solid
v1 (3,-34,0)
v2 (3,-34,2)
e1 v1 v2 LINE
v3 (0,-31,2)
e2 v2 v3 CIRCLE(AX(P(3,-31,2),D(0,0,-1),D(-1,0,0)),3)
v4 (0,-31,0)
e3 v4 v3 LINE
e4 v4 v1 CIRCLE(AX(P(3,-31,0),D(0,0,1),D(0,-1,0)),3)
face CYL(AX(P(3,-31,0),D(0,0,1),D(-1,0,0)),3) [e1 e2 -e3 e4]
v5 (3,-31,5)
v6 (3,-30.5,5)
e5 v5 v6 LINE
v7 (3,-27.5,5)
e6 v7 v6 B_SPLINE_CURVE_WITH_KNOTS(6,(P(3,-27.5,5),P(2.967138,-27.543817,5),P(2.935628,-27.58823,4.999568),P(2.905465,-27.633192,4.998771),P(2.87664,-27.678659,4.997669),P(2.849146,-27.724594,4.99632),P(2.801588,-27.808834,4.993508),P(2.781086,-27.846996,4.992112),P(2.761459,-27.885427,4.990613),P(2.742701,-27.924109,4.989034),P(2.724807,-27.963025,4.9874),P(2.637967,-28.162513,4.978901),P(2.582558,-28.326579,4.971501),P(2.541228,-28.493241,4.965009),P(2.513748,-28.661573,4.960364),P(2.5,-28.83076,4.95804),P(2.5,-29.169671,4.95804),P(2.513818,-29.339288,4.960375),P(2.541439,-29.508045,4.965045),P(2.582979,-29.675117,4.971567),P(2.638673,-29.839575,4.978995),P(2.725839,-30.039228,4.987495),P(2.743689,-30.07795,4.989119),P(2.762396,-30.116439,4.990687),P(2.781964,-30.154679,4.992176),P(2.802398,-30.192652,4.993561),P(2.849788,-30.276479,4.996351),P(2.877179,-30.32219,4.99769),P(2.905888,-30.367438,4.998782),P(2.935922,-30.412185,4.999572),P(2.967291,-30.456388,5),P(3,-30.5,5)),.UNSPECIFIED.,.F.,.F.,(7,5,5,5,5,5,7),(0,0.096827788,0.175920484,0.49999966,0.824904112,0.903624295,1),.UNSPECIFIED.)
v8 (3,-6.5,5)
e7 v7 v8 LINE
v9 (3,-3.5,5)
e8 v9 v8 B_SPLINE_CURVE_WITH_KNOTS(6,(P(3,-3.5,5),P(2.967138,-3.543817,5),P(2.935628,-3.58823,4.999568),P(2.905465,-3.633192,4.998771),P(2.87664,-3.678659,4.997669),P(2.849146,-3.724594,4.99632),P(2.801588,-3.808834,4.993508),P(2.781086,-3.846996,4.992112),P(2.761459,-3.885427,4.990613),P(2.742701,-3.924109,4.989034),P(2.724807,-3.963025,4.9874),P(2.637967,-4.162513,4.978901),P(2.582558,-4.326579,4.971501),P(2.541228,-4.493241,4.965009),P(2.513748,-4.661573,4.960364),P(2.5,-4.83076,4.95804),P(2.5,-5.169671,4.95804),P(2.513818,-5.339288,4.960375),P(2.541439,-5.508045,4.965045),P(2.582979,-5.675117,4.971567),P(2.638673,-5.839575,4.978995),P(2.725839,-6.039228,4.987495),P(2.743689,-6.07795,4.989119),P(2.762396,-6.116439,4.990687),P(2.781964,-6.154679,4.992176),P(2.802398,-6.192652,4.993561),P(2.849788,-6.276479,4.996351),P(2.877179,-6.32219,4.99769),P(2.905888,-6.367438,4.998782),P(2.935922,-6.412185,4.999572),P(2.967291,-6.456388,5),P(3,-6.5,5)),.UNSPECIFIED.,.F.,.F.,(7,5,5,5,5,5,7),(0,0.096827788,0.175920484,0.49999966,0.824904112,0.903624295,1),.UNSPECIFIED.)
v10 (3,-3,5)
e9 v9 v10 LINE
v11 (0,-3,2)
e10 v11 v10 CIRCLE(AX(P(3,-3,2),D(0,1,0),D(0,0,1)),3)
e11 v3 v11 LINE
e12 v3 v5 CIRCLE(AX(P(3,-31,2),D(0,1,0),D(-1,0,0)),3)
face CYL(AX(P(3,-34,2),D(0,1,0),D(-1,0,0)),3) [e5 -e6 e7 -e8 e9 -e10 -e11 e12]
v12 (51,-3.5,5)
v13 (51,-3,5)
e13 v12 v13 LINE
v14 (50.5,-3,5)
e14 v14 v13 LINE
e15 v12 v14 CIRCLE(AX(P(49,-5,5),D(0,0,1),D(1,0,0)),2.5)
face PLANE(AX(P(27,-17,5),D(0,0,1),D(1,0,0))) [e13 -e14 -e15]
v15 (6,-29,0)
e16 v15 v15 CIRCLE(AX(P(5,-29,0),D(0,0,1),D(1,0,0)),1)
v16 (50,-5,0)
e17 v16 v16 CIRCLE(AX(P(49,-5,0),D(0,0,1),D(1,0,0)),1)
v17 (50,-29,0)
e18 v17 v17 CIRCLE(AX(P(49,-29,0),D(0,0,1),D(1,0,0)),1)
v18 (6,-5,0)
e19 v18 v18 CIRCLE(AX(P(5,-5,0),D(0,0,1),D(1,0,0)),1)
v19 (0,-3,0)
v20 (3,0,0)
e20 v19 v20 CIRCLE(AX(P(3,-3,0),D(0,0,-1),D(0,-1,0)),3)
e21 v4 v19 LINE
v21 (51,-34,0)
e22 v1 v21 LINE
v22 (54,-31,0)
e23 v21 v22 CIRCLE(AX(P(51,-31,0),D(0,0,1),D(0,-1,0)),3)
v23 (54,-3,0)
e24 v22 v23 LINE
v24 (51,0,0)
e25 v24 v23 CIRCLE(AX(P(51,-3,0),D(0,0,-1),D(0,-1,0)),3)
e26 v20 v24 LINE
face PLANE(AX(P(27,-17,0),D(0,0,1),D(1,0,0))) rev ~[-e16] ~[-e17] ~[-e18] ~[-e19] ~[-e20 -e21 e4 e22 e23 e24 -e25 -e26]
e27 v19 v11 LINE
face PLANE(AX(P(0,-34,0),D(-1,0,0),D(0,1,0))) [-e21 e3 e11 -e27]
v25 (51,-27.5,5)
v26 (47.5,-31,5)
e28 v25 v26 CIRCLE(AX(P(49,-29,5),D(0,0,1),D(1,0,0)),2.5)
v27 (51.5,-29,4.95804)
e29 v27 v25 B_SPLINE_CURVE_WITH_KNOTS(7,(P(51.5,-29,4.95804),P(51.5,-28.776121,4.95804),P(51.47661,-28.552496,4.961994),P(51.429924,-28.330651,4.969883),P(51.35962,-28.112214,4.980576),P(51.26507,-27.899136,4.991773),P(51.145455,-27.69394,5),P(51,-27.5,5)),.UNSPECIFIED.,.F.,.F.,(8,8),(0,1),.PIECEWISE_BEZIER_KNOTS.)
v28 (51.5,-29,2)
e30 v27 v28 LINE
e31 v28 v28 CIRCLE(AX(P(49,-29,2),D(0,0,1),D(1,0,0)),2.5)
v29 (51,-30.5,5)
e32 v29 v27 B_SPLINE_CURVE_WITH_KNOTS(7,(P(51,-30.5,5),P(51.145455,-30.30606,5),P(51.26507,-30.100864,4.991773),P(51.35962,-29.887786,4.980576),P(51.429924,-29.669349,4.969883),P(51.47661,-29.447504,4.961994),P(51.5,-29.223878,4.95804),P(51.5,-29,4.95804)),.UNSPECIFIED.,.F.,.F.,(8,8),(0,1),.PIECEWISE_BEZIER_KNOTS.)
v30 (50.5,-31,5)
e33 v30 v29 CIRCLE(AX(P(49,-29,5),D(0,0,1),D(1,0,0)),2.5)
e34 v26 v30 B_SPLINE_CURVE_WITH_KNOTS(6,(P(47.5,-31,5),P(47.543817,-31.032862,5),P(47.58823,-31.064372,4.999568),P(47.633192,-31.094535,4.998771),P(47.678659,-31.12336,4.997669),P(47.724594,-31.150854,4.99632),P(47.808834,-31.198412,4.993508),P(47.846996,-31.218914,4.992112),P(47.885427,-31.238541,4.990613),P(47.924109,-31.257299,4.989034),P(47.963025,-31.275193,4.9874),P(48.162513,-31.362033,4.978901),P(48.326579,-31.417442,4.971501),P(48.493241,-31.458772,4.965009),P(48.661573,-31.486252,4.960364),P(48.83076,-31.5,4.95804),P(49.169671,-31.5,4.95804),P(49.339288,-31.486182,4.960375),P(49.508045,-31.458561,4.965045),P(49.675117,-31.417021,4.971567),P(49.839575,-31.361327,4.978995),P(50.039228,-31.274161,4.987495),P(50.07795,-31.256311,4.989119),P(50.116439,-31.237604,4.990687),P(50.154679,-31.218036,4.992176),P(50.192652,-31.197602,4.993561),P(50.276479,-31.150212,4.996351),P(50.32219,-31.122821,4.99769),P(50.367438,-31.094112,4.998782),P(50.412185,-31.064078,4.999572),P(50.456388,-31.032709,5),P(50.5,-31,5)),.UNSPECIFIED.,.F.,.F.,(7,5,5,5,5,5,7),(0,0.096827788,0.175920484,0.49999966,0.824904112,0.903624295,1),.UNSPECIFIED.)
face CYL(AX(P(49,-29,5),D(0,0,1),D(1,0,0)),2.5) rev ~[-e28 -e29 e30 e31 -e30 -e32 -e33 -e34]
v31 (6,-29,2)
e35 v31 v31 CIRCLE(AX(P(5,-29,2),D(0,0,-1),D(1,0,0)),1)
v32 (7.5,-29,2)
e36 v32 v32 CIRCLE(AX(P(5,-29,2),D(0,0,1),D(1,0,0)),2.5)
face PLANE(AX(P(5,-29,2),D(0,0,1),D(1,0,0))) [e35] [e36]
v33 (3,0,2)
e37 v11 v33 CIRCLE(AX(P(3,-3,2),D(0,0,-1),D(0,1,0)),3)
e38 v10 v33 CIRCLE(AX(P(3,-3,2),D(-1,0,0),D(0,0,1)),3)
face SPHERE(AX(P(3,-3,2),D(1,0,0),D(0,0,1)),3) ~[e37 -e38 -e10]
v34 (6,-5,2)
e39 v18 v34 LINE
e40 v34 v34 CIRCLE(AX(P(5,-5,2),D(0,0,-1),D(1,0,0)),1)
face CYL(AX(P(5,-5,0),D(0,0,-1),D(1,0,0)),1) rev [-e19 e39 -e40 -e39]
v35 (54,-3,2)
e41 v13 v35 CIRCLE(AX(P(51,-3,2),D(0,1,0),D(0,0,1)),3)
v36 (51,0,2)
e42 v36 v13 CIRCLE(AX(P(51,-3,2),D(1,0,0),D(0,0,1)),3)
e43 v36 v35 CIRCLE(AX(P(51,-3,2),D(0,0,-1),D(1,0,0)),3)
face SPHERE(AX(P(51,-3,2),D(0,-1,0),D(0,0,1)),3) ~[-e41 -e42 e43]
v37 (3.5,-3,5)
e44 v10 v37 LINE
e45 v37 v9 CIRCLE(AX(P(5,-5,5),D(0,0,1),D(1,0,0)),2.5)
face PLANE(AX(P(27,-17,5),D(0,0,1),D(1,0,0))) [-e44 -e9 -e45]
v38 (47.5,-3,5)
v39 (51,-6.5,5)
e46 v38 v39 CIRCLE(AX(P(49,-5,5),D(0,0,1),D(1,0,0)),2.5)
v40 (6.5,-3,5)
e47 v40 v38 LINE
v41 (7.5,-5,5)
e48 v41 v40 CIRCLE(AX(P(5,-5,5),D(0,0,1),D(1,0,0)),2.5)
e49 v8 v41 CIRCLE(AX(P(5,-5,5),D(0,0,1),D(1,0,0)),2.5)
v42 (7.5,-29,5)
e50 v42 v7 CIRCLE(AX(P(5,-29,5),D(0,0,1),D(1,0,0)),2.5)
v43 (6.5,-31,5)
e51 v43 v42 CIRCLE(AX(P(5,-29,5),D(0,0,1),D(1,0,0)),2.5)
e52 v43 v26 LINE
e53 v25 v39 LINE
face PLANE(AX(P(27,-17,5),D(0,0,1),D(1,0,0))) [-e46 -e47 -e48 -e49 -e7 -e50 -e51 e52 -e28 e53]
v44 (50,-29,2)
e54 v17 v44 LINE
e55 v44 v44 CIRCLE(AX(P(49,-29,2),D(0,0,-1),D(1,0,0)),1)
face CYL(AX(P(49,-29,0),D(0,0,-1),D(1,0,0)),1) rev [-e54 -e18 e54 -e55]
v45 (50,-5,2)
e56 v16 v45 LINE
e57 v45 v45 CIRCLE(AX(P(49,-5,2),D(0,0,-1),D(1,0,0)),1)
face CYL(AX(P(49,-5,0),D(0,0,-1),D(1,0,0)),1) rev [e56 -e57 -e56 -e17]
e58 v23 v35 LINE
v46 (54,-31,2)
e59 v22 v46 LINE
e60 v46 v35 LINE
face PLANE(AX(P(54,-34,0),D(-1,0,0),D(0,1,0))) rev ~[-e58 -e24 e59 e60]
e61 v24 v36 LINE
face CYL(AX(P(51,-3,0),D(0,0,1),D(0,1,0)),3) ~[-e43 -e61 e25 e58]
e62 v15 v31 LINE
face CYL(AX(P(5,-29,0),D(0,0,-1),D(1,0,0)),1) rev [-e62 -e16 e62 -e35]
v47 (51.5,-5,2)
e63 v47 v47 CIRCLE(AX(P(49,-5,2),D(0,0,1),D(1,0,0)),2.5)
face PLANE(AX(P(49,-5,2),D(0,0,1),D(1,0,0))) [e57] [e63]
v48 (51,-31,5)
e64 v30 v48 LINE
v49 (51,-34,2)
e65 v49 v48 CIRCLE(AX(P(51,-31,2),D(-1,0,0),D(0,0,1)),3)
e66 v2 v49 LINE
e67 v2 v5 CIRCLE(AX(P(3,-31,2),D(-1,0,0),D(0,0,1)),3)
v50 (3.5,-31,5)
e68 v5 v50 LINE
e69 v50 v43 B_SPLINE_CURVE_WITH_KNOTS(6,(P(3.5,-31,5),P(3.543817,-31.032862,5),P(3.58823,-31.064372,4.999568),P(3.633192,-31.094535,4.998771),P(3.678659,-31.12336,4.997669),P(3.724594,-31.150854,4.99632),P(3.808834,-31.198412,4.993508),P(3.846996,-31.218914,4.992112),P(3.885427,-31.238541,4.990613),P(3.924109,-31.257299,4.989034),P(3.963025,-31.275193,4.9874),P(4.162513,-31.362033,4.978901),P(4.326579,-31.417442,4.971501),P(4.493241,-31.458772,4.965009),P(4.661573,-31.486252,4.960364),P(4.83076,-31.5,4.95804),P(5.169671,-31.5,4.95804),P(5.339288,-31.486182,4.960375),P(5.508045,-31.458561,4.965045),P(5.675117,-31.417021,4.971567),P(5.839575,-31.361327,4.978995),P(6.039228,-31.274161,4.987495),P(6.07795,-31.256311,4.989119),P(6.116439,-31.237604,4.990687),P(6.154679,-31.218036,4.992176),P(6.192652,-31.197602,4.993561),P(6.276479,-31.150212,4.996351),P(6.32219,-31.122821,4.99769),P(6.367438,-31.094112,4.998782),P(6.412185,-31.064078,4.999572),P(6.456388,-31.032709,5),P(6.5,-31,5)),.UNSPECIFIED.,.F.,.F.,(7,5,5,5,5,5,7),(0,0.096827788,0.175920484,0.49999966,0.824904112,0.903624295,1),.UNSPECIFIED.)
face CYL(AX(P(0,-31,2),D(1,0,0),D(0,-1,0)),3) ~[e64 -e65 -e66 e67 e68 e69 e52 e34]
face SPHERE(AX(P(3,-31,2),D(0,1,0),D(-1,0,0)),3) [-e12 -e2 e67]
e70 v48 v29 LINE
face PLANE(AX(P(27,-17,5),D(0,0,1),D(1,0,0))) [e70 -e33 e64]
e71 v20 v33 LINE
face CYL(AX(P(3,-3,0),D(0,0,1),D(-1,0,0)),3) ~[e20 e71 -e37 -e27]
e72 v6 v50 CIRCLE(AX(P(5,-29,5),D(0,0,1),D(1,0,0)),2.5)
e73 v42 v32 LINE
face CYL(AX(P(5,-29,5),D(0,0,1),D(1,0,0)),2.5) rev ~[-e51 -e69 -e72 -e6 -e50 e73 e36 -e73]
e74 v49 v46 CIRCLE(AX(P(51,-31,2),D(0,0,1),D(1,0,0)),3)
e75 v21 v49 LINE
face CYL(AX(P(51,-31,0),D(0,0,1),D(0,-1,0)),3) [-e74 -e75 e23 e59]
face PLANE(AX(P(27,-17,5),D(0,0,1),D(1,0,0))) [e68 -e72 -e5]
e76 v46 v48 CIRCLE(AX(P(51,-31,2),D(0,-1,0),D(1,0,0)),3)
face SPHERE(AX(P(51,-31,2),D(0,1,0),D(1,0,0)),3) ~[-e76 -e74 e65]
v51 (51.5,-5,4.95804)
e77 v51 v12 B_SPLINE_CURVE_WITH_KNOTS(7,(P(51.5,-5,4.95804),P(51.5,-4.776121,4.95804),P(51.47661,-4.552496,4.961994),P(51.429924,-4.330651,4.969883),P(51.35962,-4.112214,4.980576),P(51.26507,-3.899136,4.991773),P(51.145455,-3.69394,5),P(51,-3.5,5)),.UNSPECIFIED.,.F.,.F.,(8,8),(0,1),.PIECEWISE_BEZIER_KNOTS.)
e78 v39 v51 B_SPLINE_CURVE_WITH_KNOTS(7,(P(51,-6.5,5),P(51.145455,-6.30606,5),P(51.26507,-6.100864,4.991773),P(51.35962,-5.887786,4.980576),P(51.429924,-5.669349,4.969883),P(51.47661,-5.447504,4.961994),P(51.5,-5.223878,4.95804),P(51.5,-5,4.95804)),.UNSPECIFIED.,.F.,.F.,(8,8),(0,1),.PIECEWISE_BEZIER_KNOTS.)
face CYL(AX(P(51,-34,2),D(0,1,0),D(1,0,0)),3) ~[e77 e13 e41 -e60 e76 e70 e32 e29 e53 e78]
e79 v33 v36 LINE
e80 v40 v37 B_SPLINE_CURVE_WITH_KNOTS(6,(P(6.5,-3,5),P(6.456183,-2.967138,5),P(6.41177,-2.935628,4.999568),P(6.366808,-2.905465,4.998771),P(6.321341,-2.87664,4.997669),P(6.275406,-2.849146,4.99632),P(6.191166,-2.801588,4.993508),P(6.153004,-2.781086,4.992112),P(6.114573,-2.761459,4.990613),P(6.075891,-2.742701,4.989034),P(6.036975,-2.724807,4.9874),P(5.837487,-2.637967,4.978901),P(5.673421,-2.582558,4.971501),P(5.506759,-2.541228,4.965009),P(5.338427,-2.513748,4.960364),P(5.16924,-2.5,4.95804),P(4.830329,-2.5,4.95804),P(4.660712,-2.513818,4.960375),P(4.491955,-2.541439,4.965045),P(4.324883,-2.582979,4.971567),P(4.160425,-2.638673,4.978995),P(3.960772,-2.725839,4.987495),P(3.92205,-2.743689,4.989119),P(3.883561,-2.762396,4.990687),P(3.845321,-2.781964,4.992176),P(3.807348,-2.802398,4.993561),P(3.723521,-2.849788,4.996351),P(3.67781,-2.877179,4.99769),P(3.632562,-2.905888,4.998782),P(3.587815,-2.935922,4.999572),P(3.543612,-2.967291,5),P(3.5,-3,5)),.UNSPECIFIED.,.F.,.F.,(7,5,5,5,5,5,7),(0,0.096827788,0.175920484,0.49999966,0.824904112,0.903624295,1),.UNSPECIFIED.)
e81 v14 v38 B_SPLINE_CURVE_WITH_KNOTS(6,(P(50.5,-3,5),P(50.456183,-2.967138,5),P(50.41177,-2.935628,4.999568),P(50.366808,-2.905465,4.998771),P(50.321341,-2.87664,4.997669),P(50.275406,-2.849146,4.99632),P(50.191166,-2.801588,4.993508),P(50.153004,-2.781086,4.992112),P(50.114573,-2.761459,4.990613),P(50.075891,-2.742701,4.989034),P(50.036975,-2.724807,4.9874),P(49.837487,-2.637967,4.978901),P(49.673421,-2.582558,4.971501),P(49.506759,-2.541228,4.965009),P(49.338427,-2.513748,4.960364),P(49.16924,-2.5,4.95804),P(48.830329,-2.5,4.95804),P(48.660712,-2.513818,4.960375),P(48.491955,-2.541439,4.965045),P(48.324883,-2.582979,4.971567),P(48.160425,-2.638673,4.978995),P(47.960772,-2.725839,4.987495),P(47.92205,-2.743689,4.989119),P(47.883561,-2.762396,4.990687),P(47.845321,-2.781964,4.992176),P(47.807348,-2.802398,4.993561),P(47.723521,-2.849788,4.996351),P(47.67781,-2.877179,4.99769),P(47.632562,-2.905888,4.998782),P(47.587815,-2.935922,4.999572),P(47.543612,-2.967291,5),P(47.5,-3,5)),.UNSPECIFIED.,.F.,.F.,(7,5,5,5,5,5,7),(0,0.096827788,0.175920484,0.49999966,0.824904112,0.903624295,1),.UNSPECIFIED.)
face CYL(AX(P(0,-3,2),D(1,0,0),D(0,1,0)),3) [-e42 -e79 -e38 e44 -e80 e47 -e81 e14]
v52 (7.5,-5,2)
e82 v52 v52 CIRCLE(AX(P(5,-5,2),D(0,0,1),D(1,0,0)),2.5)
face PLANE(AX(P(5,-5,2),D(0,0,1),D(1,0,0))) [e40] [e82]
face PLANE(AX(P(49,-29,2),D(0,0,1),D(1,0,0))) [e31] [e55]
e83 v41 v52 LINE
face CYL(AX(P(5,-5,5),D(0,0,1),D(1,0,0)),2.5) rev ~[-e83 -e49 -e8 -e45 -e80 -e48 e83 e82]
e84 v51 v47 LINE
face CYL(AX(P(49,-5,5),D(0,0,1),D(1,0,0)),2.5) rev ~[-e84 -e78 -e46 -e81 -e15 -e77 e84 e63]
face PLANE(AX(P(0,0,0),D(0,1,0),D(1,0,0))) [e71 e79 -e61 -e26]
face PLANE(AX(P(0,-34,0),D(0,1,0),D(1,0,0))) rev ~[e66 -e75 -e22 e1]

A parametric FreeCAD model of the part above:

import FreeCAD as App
import Part
import Sketcher

V = App.Vector


def edges_at(feature, points):
    """Names of the edges that pass closest to the given points."""
    edges = feature.Shape.Edges
    near = lambda p: min(range(len(edges)), key=lambda i: edges[i].distToShape(Part.Vertex(*p))[0])
    return sorted({f"Edge{near(p) + 1}" for p in points})

doc = App.newDocument("Part")
body = doc.addObject("PartDesign::Body", "Body")

# Sketch on XY plane
sketch1 = body.newObject("Sketcher::SketchObject", "Sketch")
sketch1.AttachmentSupport = (doc.getObject("XY_Plane"), [""])
sketch1.MapMode = "FlatFace"
sketch1.addGeometry([
    Part.LineSegment(V(0, 0, 0), V(0, -34, 0)),  # 0
    Part.LineSegment(V(0, -34, 0), V(54, -34, 0)),  # 1
    Part.LineSegment(V(54, -34, 0), V(54, 0, 0)),  # 2
    Part.LineSegment(V(54, 0, 0), V(0, 0, 0)),  # 3
    Part.Circle(V(5, -29, 0), V(0, 0, 1), 1),  # 4
    Part.Circle(V(49, -29, 0), V(0, 0, 1), 1),  # 5
    Part.Circle(V(5, -5, 0), V(0, 0, 1), 1),  # 6
    Part.Circle(V(49, -5, 0), V(0, 0, 1), 1),  # 7
], False)
sketch1.addConstraint([
    Sketcher.Constraint("Coincident", 0, 2, 1, 1),
    Sketcher.Constraint("Coincident", 1, 2, 2, 1),
    Sketcher.Constraint("Coincident", 2, 2, 3, 1),
    Sketcher.Constraint("Coincident", 3, 2, 0, 1),
    Sketcher.Constraint("Vertical", 0),
    Sketcher.Constraint("Horizontal", 1),
    Sketcher.Constraint("Vertical", 2),
    Sketcher.Constraint("Horizontal", 3),
    Sketcher.Constraint("Coincident", 3, 2, -1, 1),
    Sketcher.Constraint("Equal", 4, 5),
    Sketcher.Constraint("Equal", 5, 6),
    Sketcher.Constraint("Equal", 6, 7),
    Sketcher.Constraint("Horizontal", 4, 3, 5, 3),
    Sketcher.Constraint("Horizontal", 6, 3, 7, 3),
    Sketcher.Constraint("Vertical", 4, 3, 6, 3),
    Sketcher.Constraint("Vertical", 5, 3, 7, 3),
    Sketcher.Constraint("Diameter", 4, 2.0),
    Sketcher.Constraint("DistanceX", 1, 1, 1, 2, 54.0),
    Sketcher.Constraint("DistanceY", 0, 2, 0, 1, 34.0),
    Sketcher.Constraint("DistanceX", -1, 1, 4, 3, 5.0),
    Sketcher.Constraint("DistanceY", 4, 3, -1, 1, 29.0),
    Sketcher.Constraint("DistanceX", -1, 1, 5, 3, 49.0),
    Sketcher.Constraint("DistanceY", 6, 3, -1, 1, 5.0),
])
pad1 = body.newObject("PartDesign::Pad", "Pad")
pad1.Profile = sketch1
pad1.Length = 5
doc.recompute()

fillet = body.newObject("PartDesign::Fillet", "Fillet")
fillet.Base = (pad1, edges_at(pad1, [
    (54, -17, 5),
    (27, 0, 5),
    (0, -17, 5),
    (0, 0, 2.5),
    (54, 0, 2.5),
    (54, -34, 2.5),
    (0, -34, 2.5),
    (27, -34, 5),
]))
fillet.Radius = 3

# Sketch on XY plane
sketch2 = body.newObject("Sketcher::SketchObject", "Sketch001")
sketch2.AttachmentSupport = (doc.getObject("XY_Plane"), [""])
sketch2.MapMode = "FlatFace"
sketch2.AttachmentOffset = App.Placement(V(0, 0, 5), App.Rotation())
sketch2.addGeometry([
    Part.Circle(V(5, -5, 0), V(0, 0, 1), 2.5),
    Part.Circle(V(5, -29, 0), V(0, 0, 1), 2.5),
    Part.Circle(V(49, -29, 0), V(0, 0, 1), 2.5),
    Part.Circle(V(49, -5, 0), V(0, 0, 1), 2.5),
], False)
sketch2.addConstraint([
    Sketcher.Constraint("Equal", 0, 1),
    Sketcher.Constraint("Equal", 1, 2),
    Sketcher.Constraint("Equal", 2, 3),
    Sketcher.Constraint("Horizontal", 1, 3, 2, 3),
    Sketcher.Constraint("Horizontal", 0, 3, 3, 3),
    Sketcher.Constraint("Vertical", 0, 3, 1, 3),
    Sketcher.Constraint("Vertical", 2, 3, 3, 3),
    Sketcher.Constraint("Diameter", 0, 5.0),
    Sketcher.Constraint("DistanceX", -1, 1, 0, 3, 5.0),
    Sketcher.Constraint("DistanceY", 0, 3, -1, 1, 5.0),
    Sketcher.Constraint("DistanceY", 1, 3, -1, 1, 29.0),
    Sketcher.Constraint("DistanceX", -1, 1, 2, 3, 49.0),
])
pocket1 = body.newObject("PartDesign::Pocket", "Pocket")
pocket1.Profile = sketch2
pocket1.Length = 3

doc.recompute()
